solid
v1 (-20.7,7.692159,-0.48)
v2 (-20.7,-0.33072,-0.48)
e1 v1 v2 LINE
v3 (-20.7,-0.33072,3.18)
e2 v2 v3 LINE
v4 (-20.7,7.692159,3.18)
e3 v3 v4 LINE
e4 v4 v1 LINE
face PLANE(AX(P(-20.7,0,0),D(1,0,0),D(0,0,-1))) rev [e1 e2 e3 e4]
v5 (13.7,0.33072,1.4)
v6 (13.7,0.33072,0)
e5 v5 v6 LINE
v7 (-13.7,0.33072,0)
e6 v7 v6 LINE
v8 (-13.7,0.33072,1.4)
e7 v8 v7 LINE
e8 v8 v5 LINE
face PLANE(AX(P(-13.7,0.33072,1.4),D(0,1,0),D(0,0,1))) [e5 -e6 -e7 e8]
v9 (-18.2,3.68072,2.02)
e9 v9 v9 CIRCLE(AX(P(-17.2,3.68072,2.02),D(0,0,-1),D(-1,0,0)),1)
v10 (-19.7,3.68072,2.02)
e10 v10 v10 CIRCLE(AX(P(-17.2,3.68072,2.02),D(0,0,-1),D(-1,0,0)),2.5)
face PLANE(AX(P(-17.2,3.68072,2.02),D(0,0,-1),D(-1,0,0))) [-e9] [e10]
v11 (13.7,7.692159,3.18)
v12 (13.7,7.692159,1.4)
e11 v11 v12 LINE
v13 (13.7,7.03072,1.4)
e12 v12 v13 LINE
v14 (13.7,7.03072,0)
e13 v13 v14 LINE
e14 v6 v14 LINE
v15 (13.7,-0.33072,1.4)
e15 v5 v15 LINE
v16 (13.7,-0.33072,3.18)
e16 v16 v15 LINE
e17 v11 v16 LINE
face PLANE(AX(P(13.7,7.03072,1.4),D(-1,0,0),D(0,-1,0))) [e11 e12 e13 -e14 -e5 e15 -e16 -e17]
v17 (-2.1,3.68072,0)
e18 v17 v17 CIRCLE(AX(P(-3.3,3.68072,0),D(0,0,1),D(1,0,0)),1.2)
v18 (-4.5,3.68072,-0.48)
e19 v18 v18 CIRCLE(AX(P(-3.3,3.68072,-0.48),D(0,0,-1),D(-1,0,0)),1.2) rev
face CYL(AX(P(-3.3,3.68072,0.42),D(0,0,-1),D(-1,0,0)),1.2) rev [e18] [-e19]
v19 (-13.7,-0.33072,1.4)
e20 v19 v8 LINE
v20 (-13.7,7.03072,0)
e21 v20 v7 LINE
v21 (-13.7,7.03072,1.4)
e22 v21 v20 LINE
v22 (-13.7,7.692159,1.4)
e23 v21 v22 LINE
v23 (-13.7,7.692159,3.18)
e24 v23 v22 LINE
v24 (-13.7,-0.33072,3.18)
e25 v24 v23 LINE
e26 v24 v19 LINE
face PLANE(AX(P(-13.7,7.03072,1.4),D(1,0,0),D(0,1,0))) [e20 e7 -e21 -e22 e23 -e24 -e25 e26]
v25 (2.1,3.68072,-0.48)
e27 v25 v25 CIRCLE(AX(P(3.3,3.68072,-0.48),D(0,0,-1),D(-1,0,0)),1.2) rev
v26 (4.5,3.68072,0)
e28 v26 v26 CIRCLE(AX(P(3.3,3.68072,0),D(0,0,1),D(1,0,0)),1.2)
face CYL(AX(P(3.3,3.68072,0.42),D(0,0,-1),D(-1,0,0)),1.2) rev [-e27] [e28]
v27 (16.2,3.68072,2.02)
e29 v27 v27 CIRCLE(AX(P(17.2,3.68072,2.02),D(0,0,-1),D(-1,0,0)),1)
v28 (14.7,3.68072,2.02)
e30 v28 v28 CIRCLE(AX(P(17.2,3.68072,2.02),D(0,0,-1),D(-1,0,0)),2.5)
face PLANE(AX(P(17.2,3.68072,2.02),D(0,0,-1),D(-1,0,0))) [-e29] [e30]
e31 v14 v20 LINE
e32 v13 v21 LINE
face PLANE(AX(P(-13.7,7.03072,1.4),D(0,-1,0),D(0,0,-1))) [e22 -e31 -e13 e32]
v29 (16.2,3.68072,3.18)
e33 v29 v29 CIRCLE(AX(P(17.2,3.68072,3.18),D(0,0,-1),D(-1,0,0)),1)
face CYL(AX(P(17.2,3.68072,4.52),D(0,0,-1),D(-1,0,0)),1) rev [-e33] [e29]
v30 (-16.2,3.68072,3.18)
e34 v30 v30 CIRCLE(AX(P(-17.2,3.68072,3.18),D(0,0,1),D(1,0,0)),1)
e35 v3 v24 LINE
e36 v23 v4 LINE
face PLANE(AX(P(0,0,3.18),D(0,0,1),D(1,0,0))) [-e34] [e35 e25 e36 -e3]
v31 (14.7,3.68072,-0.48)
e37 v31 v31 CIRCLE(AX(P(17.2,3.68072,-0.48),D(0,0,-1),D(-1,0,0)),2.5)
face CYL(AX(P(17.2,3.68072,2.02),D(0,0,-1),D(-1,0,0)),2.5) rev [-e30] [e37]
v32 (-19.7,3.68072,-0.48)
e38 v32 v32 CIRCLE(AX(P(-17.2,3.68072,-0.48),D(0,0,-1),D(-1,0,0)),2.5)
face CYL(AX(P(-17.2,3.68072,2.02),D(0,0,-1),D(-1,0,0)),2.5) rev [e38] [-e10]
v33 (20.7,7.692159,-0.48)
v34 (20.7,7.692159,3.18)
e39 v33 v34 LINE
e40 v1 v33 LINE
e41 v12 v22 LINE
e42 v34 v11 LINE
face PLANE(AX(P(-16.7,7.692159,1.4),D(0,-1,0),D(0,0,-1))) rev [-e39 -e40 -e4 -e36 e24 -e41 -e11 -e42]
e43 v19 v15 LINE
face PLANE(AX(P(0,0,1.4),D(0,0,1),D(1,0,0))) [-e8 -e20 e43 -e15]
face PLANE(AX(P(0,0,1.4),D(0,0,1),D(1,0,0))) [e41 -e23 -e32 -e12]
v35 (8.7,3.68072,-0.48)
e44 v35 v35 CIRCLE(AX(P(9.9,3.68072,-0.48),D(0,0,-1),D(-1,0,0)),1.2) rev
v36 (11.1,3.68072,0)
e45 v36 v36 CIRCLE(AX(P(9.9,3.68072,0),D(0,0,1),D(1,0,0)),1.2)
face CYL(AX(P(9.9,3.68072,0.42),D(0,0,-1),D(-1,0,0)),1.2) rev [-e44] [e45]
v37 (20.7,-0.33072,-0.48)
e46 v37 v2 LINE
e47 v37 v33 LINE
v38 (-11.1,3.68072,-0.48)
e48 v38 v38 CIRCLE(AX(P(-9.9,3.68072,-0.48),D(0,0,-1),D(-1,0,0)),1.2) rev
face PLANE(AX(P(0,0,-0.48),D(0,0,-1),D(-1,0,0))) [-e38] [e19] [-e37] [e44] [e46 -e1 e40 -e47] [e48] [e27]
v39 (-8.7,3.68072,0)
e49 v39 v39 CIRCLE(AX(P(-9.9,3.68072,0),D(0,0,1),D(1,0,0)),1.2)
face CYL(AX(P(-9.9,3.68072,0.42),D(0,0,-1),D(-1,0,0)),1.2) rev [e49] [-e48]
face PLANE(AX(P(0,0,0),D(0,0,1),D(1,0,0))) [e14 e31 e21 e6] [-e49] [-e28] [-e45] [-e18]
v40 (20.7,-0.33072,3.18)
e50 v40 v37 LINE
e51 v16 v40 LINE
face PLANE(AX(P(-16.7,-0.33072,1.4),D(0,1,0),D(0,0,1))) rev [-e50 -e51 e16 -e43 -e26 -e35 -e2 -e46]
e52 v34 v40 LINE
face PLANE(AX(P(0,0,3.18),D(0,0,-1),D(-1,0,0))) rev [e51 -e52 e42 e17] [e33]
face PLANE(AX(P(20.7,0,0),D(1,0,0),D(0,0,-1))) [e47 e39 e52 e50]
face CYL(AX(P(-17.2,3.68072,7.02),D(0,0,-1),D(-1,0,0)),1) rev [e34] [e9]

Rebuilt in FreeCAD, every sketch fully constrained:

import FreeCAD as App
import Part
import Sketcher

V = App.Vector
Q = App.Units.Quantity

doc = App.newDocument("Part")
body = doc.addObject("PartDesign::Body", "Body")

# Sketch on XY plane
sketch1 = body.newObject("Sketcher::SketchObject", "Sketch")
sketch1.AttachmentSupport = (doc.getObject("XY_Plane"), [""])
sketch1.MapMode = "FlatFace"
sketch1.addGeometry(Part.LineSegment(V(-16.7, -0.33072, 0), V(16.7, -0.33072, 0)), False)
sketch1.addGeometry(Part.LineSegment(V(16.7, -0.33072, 0), V(16.7, 7.692159, 0)), False)
sketch1.addGeometry(Part.LineSegment(V(16.7, 7.692159, 0), V(-16.7, 7.692159, 0)), False)
sketch1.addGeometry(Part.LineSegment(V(-16.7, 7.692159, 0), V(-16.7, -0.33072, 0)), False)
sketch1.addGeometry(Part.LineSegment(V(13.7, 0.33072, 0), V(-13.7, 0.33072, 0)), False)
sketch1.addGeometry(Part.LineSegment(V(-13.7, 0.33072, 0), V(-13.7, 7.03072, 0)), False)
sketch1.addGeometry(Part.LineSegment(V(-13.7, 7.03072, 0), V(13.7, 7.03072, 0)), False)
sketch1.addGeometry(Part.LineSegment(V(13.7, 7.03072, 0), V(13.7, 0.33072, 0)), False)
sketch1.addConstraint(Sketcher.Constraint("Coincident", 0, 2, 1, 1))
sketch1.addConstraint(Sketcher.Constraint("Coincident", 1, 2, 2, 1))
sketch1.addConstraint(Sketcher.Constraint("Coincident", 2, 2, 3, 1))
sketch1.addConstraint(Sketcher.Constraint("Coincident", 3, 2, 0, 1))
sketch1.addConstraint(Sketcher.Constraint("Coincident", 4, 2, 5, 1))
sketch1.addConstraint(Sketcher.Constraint("Coincident", 5, 2, 6, 1))
sketch1.addConstraint(Sketcher.Constraint("Coincident", 6, 2, 7, 1))
sketch1.addConstraint(Sketcher.Constraint("Coincident", 7, 2, 4, 1))
sketch1.addConstraint(Sketcher.Constraint("Horizontal", 0))
sketch1.addConstraint(Sketcher.Constraint("Vertical", 1))
sketch1.addConstraint(Sketcher.Constraint("Horizontal", 2))
sketch1.addConstraint(Sketcher.Constraint("Vertical", 3))
sketch1.addConstraint(Sketcher.Constraint("Horizontal", 4))
sketch1.addConstraint(Sketcher.Constraint("Vertical", 5))
sketch1.addConstraint(Sketcher.Constraint("Horizontal", 6))
sketch1.addConstraint(Sketcher.Constraint("Vertical", 7))
sketch1.addConstraint(Sketcher.Constraint("DistanceX", 0, 1, 0, 2, Q("33.4 mm")))
sketch1.addConstraint(Sketcher.Constraint("DistanceX", 4, 2, 4, 1, Q("27.4 mm")))
sketch1.addConstraint(Sketcher.Constraint("DistanceY", 5, 1, 5, 2, Q("6.7 mm")))
sketch1.addConstraint(Sketcher.Constraint("DistanceX", 3, 2, 4, 2, Q("3 mm")))
sketch1.addConstraint(Sketcher.Constraint("DistanceX", -1, 1, 0, 2, Q("16.7 mm")))
sketch1.addConstraint(Sketcher.Constraint("DistanceY", 1, 1, 1, 2, Q("8.022879 mm")))
sketch1.addConstraint(Sketcher.Constraint("DistanceY", 0, 2, -1, 1, Q("0.33072 mm")))
sketch1.addConstraint(Sketcher.Constraint("DistanceY", -1, 1, 4, 2, Q("0.33072 mm")))
pad1 = body.newObject("PartDesign::Pad", "Pad")
pad1.Profile = sketch1
pad1.Length = 1.4

# Sketch on XY plane
sketch2 = body.newObject("Sketcher::SketchObject", "Sketch001")
sketch2.AttachmentSupport = (doc.getObject("XY_Plane"), [""])
sketch2.MapMode = "FlatFace"
sketch2.AttachmentOffset = App.Placement(V(0, 0, 1.4), App.Rotation())
sketch2.addGeometry(Part.LineSegment(V(-16.7, 7.692159, 0), V(-16.7, -0.33072, 0)), False)
sketch2.addGeometry(Part.LineSegment(V(-16.7, -0.33072, 0), V(-13.7, -0.33072, 0)), False)
sketch2.addGeometry(Part.LineSegment(V(-13.7, -0.33072, 0), V(-13.7, 7.692159, 0)), False)
sketch2.addGeometry(Part.LineSegment(V(-13.7, 7.692159, 0), V(-16.7, 7.692159, 0)), False)
sketch2.addGeometry(Part.LineSegment(V(13.7, 7.692159, 0), V(13.7, -0.33072, 0)), False)
sketch2.addGeometry(Part.LineSegment(V(13.7, -0.33072, 0), V(16.7, -0.33072, 0)), False)
sketch2.addGeometry(Part.LineSegment(V(16.7, -0.33072, 0), V(16.7, 7.692159, 0)), False)
sketch2.addGeometry(Part.LineSegment(V(16.7, 7.692159, 0), V(13.7, 7.692159, 0)), False)
sketch2.addConstraint(Sketcher.Constraint("Coincident", 0, 2, 1, 1))
sketch2.addConstraint(Sketcher.Constraint("Coincident", 1, 2, 2, 1))
sketch2.addConstraint(Sketcher.Constraint("Coincident", 2, 2, 3, 1))
sketch2.addConstraint(Sketcher.Constraint("Coincident", 3, 2, 0, 1))
sketch2.addConstraint(Sketcher.Constraint("Coincident", 4, 2, 5, 1))
sketch2.addConstraint(Sketcher.Constraint("Coincident", 5, 2, 6, 1))
sketch2.addConstraint(Sketcher.Constraint("Coincident", 6, 2, 7, 1))
sketch2.addConstraint(Sketcher.Constraint("Coincident", 7, 2, 4, 1))
sketch2.addConstraint(Sketcher.Constraint("Vertical", 0))
sketch2.addConstraint(Sketcher.Constraint("Horizontal", 1))
sketch2.addConstraint(Sketcher.Constraint("Vertical", 2))
sketch2.addConstraint(Sketcher.Constraint("Horizontal", 3))
sketch2.addConstraint(Sketcher.Constraint("Vertical", 4))
sketch2.addConstraint(Sketcher.Constraint("Horizontal", 5))
sketch2.addConstraint(Sketcher.Constraint("Vertical", 6))
sketch2.addConstraint(Sketcher.Constraint("Horizontal", 7))
sketch2.addConstraint(Sketcher.Constraint("Symmetric", 1, 2, 4, 2, -2))
sketch2.addConstraint(Sketcher.Constraint("Symmetric", 3, 2, 6, 2, -2))
sketch2.addConstraint(Sketcher.Constraint("DistanceX", 1, 1, 1, 2, Q("3 mm")))
sketch2.addConstraint(Sketcher.Constraint("DistanceX", 0, 2, -1, 1, Q("16.7 mm")))
sketch2.addConstraint(Sketcher.Constraint("DistanceY", 0, 2, 0, 1, Q("8.022879 mm")))
sketch2.addConstraint(Sketcher.Constraint("DistanceY", 0, 2, -1, 1, Q("0.33072 mm")))
pad2 = body.newObject("PartDesign::Pad", "Pad001")
pad2.Profile = sketch2
pad2.Length = 1.78

# Sketch on XY plane
sketch3 = body.newObject("Sketcher::SketchObject", "Sketch002")
sketch3.AttachmentSupport = (doc.getObject("XY_Plane"), [""])
sketch3.MapMode = "FlatFace"
sketch3.addGeometry(Part.LineSegment(V(16.7, 7.692159, 0), V(16.7, -0.33072, 0)), False)
sketch3.addGeometry(Part.LineSegment(V(16.7, -0.33072, 0), V(-16.7, -0.33072, 0)), False)
sketch3.addGeometry(Part.LineSegment(V(-16.7, -0.33072, 0), V(-16.7, 7.692159, 0)), False)
sketch3.addGeometry(Part.LineSegment(V(-16.7, 7.692159, 0), V(16.7, 7.692159, 0)), False)
sketch3.addConstraint(Sketcher.Constraint("Coincident", 0, 2, 1, 1))
sketch3.addConstraint(Sketcher.Constraint("Coincident", 1, 2, 2, 1))
sketch3.addConstraint(Sketcher.Constraint("Coincident", 2, 2, 3, 1))
sketch3.addConstraint(Sketcher.Constraint("Coincident", 3, 2, 0, 1))
sketch3.addConstraint(Sketcher.Constraint("Vertical", 0))
sketch3.addConstraint(Sketcher.Constraint("Horizontal", 1))
sketch3.addConstraint(Sketcher.Constraint("Vertical", 2))
sketch3.addConstraint(Sketcher.Constraint("Horizontal", 3))
sketch3.addConstraint(Sketcher.Constraint("DistanceX", 1, 2, 1, 1, Q("33.4 mm")))
sketch3.addConstraint(Sketcher.Constraint("DistanceX", -1, 1, 0, 2, Q("16.7 mm")))
sketch3.addConstraint(Sketcher.Constraint("DistanceY", 0, 2, 0, 1, Q("8.022879 mm")))
sketch3.addConstraint(Sketcher.Constraint("DistanceY", 0, 2, -1, 1, Q("0.33072 mm")))
pad3 = body.newObject("PartDesign::Pad", "Pad002")
pad3.Profile = sketch3
pad3.Length = 0.58
pad3.Reversed = True

# Sketch on XY plane
sketch4 = body.newObject("Sketcher::SketchObject", "Sketch003")
sketch4.AttachmentSupport = (doc.getObject("XY_Plane"), [""])
sketch4.MapMode = "FlatFace"
sketch4.AttachmentOffset = App.Placement(V(0, 0, -0.58), App.Rotation())
sketch4.addGeometry(Part.Circle(V(9.9, 3.68072, 0), V(0, 0, 1), 1.2), False)
sketch4.addGeometry(Part.Circle(V(3.3, 3.68072, 0), V(0, 0, 1), 1.2), False)
sketch4.addGeometry(Part.Circle(V(-3.3, 3.68072, 0), V(0, 0, 1), 1.2), False)
sketch4.addGeometry(Part.Circle(V(-9.9, 3.68072, 0), V(0, 0, 1), 1.2), False)
sketch4.addConstraint(Sketcher.Constraint("Equal", 0, 1))
sketch4.addConstraint(Sketcher.Constraint("Equal", 1, 2))
sketch4.addConstraint(Sketcher.Constraint("Equal", 2, 3))
sketch4.addConstraint(Sketcher.Constraint("Symmetric", 1, 3, 2, 3, -2))
sketch4.addConstraint(Sketcher.Constraint("Symmetric", 0, 3, 3, 3, -2))
sketch4.addConstraint(Sketcher.Constraint("Horizontal", 0, 3, 1, 3))
sketch4.addConstraint(Sketcher.Constraint("Diameter", 0, Q("2.4 mm")))
sketch4.addConstraint(Sketcher.Constraint("DistanceX", -1, 1, 0, 3, Q("9.9 mm")))
sketch4.addConstraint(Sketcher.Constraint("DistanceX", -1, 1, 1, 3, Q("3.3 mm")))
sketch4.addConstraint(Sketcher.Constraint("DistanceY", -1, 1, 0, 3, Q("3.68072 mm")))
pocket1 = body.newObject("PartDesign::Pocket", "Pocket")
pocket1.Profile = sketch4
pocket1.Length = 1
pocket1.Reversed = True

# Sketch on XY plane
sketch5 = body.newObject("Sketcher::SketchObject", "Sketch004")
sketch5.AttachmentSupport = (doc.getObject("XY_Plane"), [""])
sketch5.MapMode = "FlatFace"
sketch5.AttachmentOffset = App.Placement(V(0, 0, -0.58), App.Rotation())
sketch5.addGeometry(Part.LineSegment(V(16.7, 7.692159, 0), V(16.7, -0.33072, 0)), False)
sketch5.addGeometry(Part.LineSegment(V(16.7, -0.33072, 0), V(-16.7, -0.33072, 0)), False)
sketch5.addGeometry(Part.LineSegment(V(-16.7, -0.33072, 0), V(-16.7, 7.692159, 0)), False)
sketch5.addGeometry(Part.LineSegment(V(-16.7, 7.692159, 0), V(16.7, 7.692159, 0)), False)
sketch5.addConstraint(Sketcher.Constraint("Coincident", 0, 2, 1, 1))
sketch5.addConstraint(Sketcher.Constraint("Coincident", 1, 2, 2, 1))
sketch5.addConstraint(Sketcher.Constraint("Coincident", 2, 2, 3, 1))
sketch5.addConstraint(Sketcher.Constraint("Coincident", 3, 2, 0, 1))
sketch5.addConstraint(Sketcher.Constraint("Vertical", 0))
sketch5.addConstraint(Sketcher.Constraint("Horizontal", 1))
sketch5.addConstraint(Sketcher.Constraint("Vertical", 2))
sketch5.addConstraint(Sketcher.Constraint("Horizontal", 3))
sketch5.addConstraint(Sketcher.Constraint("DistanceX", 1, 2, 1, 1, Q("33.4 mm")))
sketch5.addConstraint(Sketcher.Constraint("DistanceX", -1, 1, 0, 2, Q("16.7 mm")))
sketch5.addConstraint(Sketcher.Constraint("DistanceY", 0, 2, 0, 1, Q("8.022879 mm")))
sketch5.addConstraint(Sketcher.Constraint("DistanceY", 0, 2, -1, 1, Q("0.33072 mm")))
pocket2 = body.newObject("PartDesign::Pocket", "Pocket001")
pocket2.Profile = sketch5
pocket2.Length = 0.1
pocket2.Reversed = True

# Sketch on YZ plane
sketch6 = body.newObject("Sketcher::SketchObject", "Sketch005")
sketch6.AttachmentSupport = (doc.getObject("YZ_Plane"), [""])
sketch6.MapMode = "FlatFace"
sketch6.AttachmentOffset = App.Placement(V(0, 0, -16.7), App.Rotation())
sketch6.addGeometry(Part.LineSegment(V(7.692159, -0.48, 0), V(-0.33072, -0.48, 0)), False)
sketch6.addGeometry(Part.LineSegment(V(-0.33072, -0.48, 0), V(-0.33072, 3.18, 0)), False)
sketch6.addGeometry(Part.LineSegment(V(-0.33072, 3.18, 0), V(7.692159, 3.18, 0)), False)
sketch6.addGeometry(Part.LineSegment(V(7.692159, 3.18, 0), V(7.692159, -0.48, 0)), False)
sketch6.addConstraint(Sketcher.Constraint("Coincident", 0, 2, 1, 1))
sketch6.addConstraint(Sketcher.Constraint("Coincident", 1, 2, 2, 1))
sketch6.addConstraint(Sketcher.Constraint("Coincident", 2, 2, 3, 1))
sketch6.addConstraint(Sketcher.Constraint("Coincident", 3, 2, 0, 1))
sketch6.addConstraint(Sketcher.Constraint("Horizontal", 0))
sketch6.addConstraint(Sketcher.Constraint("Vertical", 1))
sketch6.addConstraint(Sketcher.Constraint("Horizontal", 2))
sketch6.addConstraint(Sketcher.Constraint("Vertical", 3))
sketch6.addConstraint(Sketcher.Constraint("DistanceY", 1, 1, 1, 2, Q("3.66 mm")))
sketch6.addConstraint(Sketcher.Constraint("DistanceY", 0, 2, -1, 1, Q("0.48 mm")))
sketch6.addConstraint(Sketcher.Constraint("DistanceX", 0, 2, 0, 1, Q("8.022879 mm")))
sketch6.addConstraint(Sketcher.Constraint("DistanceX", 0, 2, -1, 1, Q("0.33072 mm")))
pad4 = body.newObject("PartDesign::Pad", "Pad003")
pad4.Profile = sketch6
pad4.Length = 4
pad4.Reversed = True

# Sketch on XY plane
sketch7 = body.newObject("Sketcher::SketchObject", "Sketch006")
sketch7.AttachmentSupport = (doc.getObject("XY_Plane"), [""])
sketch7.MapMode = "FlatFace"
sketch7.AttachmentOffset = App.Placement(V(0, 0, -0.48), App.Rotation())
sketch7.addGeometry(Part.Circle(V(-17.2, 3.68072, 0), V(0, 0, 1), 2.5), False)
sketch7.addConstraint(Sketcher.Constraint("Diameter", 0, Q("5 mm")))
sketch7.addConstraint(Sketcher.Constraint("DistanceX", 0, 3, -1, 1, Q("17.2 mm")))
sketch7.addConstraint(Sketcher.Constraint("DistanceY", -1, 1, 0, 3, Q("3.68072 mm")))
pocket3 = body.newObject("PartDesign::Pocket", "Pocket002")
pocket3.Profile = sketch7
pocket3.Length = 2.5
pocket3.Reversed = True

# Sketch on XY plane
sketch8 = body.newObject("Sketcher::SketchObject", "Sketch007")
sketch8.AttachmentSupport = (doc.getObject("XY_Plane"), [""])
sketch8.MapMode = "FlatFace"
sketch8.AttachmentOffset = App.Placement(V(0, 0, 2.02), App.Rotation())
sketch8.addGeometry(Part.Circle(V(-17.2, 3.68072, 0), V(0, 0, 1), 1), False)
sketch8.addConstraint(Sketcher.Constraint("Diameter", 0, Q("2 mm")))
sketch8.addConstraint(Sketcher.Constraint("DistanceX", 0, 3, -1, 1, Q("17.2 mm")))
sketch8.addConstraint(Sketcher.Constraint("DistanceY", -1, 1, 0, 3, Q("3.68072 mm")))
pocket4 = body.newObject("PartDesign::Pocket", "Pocket003")
pocket4.Profile = sketch8
pocket4.Length = 5
pocket4.Reversed = True

# Sketch on YZ plane
sketch9 = body.newObject("Sketcher::SketchObject", "Sketch008")
sketch9.AttachmentSupport = (doc.getObject("YZ_Plane"), [""])
sketch9.MapMode = "FlatFace"
sketch9.AttachmentOffset = App.Placement(V(0, 0, 16.7), App.Rotation())
sketch9.addGeometry(Part.LineSegment(V(7.692159, 3.18, 0), V(-0.33072, 3.18, 0)), False)
sketch9.addGeometry(Part.LineSegment(V(-0.33072, 3.18, 0), V(-0.33072, -0.48, 0)), False)
sketch9.addGeometry(Part.LineSegment(V(-0.33072, -0.48, 0), V(7.692159, -0.48, 0)), False)
sketch9.addGeometry(Part.LineSegment(V(7.692159, -0.48, 0), V(7.692159, 3.18, 0)), False)
sketch9.addConstraint(Sketcher.Constraint("Coincident", 0, 2, 1, 1))
sketch9.addConstraint(Sketcher.Constraint("Coincident", 1, 2, 2, 1))
sketch9.addConstraint(Sketcher.Constraint("Coincident", 2, 2, 3, 1))
sketch9.addConstraint(Sketcher.Constraint("Coincident", 3, 2, 0, 1))
sketch9.addConstraint(Sketcher.Constraint("Horizontal", 0))
sketch9.addConstraint(Sketcher.Constraint("Vertical", 1))
sketch9.addConstraint(Sketcher.Constraint("Horizontal", 2))
sketch9.addConstraint(Sketcher.Constraint("Vertical", 3))
sketch9.addConstraint(Sketcher.Constraint("DistanceY", 1, 2, 1, 1, Q("3.66 mm")))
sketch9.addConstraint(Sketcher.Constraint("DistanceY", -1, 1, 0, 2, Q("3.18 mm")))
sketch9.addConstraint(Sketcher.Constraint("DistanceX", 0, 2, 0, 1, Q("8.022879 mm")))
sketch9.addConstraint(Sketcher.Constraint("DistanceX", 0, 2, -1, 1, Q("0.33072 mm")))
pad5 = body.newObject("PartDesign::Pad", "Pad004")
pad5.Profile = sketch9
pad5.Length = 4

# Sketch on XY plane
sketch10 = body.newObject("Sketcher::SketchObject", "Sketch009")
sketch10.AttachmentSupport = (doc.getObject("XY_Plane"), [""])
sketch10.MapMode = "FlatFace"
sketch10.AttachmentOffset = App.Placement(V(0, 0, -0.48), App.Rotation())
sketch10.addGeometry(Part.Circle(V(17.2, 3.68072, 0), V(0, 0, 1), 2.5), False)
sketch10.addConstraint(Sketcher.Constraint("Diameter", 0, Q("5 mm")))
sketch10.addConstraint(Sketcher.Constraint("DistanceX", -1, 1, 0, 3, Q("17.2 mm")))
sketch10.addConstraint(Sketcher.Constraint("DistanceY", -1, 1, 0, 3, Q("3.68072 mm")))
pocket5 = body.newObject("PartDesign::Pocket", "Pocket004")
pocket5.Profile = sketch10
pocket5.Length = 2.5
pocket5.Reversed = True

# Sketch on XY plane
sketch11 = body.newObject("Sketcher::SketchObject", "Sketch010")
sketch11.AttachmentSupport = (doc.getObject("XY_Plane"), [""])
sketch11.MapMode = "FlatFace"
sketch11.AttachmentOffset = App.Placement(V(0, 0, 2.02), App.Rotation())
sketch11.addGeometry(Part.Circle(V(17.2, 3.68072, 0), V(0, 0, 1), 1), False)
sketch11.addConstraint(Sketcher.Constraint("Diameter", 0, Q("2 mm")))
sketch11.addConstraint(Sketcher.Constraint("DistanceX", -1, 1, 0, 3, Q("17.2 mm")))
sketch11.addConstraint(Sketcher.Constraint("DistanceY", -1, 1, 0, 3, Q("3.68072 mm")))
pocket6 = body.newObject("PartDesign::Pocket", "Pocket005")
pocket6.Profile = sketch11
pocket6.Length = 2.5
pocket6.Reversed = True

doc.recompute()
